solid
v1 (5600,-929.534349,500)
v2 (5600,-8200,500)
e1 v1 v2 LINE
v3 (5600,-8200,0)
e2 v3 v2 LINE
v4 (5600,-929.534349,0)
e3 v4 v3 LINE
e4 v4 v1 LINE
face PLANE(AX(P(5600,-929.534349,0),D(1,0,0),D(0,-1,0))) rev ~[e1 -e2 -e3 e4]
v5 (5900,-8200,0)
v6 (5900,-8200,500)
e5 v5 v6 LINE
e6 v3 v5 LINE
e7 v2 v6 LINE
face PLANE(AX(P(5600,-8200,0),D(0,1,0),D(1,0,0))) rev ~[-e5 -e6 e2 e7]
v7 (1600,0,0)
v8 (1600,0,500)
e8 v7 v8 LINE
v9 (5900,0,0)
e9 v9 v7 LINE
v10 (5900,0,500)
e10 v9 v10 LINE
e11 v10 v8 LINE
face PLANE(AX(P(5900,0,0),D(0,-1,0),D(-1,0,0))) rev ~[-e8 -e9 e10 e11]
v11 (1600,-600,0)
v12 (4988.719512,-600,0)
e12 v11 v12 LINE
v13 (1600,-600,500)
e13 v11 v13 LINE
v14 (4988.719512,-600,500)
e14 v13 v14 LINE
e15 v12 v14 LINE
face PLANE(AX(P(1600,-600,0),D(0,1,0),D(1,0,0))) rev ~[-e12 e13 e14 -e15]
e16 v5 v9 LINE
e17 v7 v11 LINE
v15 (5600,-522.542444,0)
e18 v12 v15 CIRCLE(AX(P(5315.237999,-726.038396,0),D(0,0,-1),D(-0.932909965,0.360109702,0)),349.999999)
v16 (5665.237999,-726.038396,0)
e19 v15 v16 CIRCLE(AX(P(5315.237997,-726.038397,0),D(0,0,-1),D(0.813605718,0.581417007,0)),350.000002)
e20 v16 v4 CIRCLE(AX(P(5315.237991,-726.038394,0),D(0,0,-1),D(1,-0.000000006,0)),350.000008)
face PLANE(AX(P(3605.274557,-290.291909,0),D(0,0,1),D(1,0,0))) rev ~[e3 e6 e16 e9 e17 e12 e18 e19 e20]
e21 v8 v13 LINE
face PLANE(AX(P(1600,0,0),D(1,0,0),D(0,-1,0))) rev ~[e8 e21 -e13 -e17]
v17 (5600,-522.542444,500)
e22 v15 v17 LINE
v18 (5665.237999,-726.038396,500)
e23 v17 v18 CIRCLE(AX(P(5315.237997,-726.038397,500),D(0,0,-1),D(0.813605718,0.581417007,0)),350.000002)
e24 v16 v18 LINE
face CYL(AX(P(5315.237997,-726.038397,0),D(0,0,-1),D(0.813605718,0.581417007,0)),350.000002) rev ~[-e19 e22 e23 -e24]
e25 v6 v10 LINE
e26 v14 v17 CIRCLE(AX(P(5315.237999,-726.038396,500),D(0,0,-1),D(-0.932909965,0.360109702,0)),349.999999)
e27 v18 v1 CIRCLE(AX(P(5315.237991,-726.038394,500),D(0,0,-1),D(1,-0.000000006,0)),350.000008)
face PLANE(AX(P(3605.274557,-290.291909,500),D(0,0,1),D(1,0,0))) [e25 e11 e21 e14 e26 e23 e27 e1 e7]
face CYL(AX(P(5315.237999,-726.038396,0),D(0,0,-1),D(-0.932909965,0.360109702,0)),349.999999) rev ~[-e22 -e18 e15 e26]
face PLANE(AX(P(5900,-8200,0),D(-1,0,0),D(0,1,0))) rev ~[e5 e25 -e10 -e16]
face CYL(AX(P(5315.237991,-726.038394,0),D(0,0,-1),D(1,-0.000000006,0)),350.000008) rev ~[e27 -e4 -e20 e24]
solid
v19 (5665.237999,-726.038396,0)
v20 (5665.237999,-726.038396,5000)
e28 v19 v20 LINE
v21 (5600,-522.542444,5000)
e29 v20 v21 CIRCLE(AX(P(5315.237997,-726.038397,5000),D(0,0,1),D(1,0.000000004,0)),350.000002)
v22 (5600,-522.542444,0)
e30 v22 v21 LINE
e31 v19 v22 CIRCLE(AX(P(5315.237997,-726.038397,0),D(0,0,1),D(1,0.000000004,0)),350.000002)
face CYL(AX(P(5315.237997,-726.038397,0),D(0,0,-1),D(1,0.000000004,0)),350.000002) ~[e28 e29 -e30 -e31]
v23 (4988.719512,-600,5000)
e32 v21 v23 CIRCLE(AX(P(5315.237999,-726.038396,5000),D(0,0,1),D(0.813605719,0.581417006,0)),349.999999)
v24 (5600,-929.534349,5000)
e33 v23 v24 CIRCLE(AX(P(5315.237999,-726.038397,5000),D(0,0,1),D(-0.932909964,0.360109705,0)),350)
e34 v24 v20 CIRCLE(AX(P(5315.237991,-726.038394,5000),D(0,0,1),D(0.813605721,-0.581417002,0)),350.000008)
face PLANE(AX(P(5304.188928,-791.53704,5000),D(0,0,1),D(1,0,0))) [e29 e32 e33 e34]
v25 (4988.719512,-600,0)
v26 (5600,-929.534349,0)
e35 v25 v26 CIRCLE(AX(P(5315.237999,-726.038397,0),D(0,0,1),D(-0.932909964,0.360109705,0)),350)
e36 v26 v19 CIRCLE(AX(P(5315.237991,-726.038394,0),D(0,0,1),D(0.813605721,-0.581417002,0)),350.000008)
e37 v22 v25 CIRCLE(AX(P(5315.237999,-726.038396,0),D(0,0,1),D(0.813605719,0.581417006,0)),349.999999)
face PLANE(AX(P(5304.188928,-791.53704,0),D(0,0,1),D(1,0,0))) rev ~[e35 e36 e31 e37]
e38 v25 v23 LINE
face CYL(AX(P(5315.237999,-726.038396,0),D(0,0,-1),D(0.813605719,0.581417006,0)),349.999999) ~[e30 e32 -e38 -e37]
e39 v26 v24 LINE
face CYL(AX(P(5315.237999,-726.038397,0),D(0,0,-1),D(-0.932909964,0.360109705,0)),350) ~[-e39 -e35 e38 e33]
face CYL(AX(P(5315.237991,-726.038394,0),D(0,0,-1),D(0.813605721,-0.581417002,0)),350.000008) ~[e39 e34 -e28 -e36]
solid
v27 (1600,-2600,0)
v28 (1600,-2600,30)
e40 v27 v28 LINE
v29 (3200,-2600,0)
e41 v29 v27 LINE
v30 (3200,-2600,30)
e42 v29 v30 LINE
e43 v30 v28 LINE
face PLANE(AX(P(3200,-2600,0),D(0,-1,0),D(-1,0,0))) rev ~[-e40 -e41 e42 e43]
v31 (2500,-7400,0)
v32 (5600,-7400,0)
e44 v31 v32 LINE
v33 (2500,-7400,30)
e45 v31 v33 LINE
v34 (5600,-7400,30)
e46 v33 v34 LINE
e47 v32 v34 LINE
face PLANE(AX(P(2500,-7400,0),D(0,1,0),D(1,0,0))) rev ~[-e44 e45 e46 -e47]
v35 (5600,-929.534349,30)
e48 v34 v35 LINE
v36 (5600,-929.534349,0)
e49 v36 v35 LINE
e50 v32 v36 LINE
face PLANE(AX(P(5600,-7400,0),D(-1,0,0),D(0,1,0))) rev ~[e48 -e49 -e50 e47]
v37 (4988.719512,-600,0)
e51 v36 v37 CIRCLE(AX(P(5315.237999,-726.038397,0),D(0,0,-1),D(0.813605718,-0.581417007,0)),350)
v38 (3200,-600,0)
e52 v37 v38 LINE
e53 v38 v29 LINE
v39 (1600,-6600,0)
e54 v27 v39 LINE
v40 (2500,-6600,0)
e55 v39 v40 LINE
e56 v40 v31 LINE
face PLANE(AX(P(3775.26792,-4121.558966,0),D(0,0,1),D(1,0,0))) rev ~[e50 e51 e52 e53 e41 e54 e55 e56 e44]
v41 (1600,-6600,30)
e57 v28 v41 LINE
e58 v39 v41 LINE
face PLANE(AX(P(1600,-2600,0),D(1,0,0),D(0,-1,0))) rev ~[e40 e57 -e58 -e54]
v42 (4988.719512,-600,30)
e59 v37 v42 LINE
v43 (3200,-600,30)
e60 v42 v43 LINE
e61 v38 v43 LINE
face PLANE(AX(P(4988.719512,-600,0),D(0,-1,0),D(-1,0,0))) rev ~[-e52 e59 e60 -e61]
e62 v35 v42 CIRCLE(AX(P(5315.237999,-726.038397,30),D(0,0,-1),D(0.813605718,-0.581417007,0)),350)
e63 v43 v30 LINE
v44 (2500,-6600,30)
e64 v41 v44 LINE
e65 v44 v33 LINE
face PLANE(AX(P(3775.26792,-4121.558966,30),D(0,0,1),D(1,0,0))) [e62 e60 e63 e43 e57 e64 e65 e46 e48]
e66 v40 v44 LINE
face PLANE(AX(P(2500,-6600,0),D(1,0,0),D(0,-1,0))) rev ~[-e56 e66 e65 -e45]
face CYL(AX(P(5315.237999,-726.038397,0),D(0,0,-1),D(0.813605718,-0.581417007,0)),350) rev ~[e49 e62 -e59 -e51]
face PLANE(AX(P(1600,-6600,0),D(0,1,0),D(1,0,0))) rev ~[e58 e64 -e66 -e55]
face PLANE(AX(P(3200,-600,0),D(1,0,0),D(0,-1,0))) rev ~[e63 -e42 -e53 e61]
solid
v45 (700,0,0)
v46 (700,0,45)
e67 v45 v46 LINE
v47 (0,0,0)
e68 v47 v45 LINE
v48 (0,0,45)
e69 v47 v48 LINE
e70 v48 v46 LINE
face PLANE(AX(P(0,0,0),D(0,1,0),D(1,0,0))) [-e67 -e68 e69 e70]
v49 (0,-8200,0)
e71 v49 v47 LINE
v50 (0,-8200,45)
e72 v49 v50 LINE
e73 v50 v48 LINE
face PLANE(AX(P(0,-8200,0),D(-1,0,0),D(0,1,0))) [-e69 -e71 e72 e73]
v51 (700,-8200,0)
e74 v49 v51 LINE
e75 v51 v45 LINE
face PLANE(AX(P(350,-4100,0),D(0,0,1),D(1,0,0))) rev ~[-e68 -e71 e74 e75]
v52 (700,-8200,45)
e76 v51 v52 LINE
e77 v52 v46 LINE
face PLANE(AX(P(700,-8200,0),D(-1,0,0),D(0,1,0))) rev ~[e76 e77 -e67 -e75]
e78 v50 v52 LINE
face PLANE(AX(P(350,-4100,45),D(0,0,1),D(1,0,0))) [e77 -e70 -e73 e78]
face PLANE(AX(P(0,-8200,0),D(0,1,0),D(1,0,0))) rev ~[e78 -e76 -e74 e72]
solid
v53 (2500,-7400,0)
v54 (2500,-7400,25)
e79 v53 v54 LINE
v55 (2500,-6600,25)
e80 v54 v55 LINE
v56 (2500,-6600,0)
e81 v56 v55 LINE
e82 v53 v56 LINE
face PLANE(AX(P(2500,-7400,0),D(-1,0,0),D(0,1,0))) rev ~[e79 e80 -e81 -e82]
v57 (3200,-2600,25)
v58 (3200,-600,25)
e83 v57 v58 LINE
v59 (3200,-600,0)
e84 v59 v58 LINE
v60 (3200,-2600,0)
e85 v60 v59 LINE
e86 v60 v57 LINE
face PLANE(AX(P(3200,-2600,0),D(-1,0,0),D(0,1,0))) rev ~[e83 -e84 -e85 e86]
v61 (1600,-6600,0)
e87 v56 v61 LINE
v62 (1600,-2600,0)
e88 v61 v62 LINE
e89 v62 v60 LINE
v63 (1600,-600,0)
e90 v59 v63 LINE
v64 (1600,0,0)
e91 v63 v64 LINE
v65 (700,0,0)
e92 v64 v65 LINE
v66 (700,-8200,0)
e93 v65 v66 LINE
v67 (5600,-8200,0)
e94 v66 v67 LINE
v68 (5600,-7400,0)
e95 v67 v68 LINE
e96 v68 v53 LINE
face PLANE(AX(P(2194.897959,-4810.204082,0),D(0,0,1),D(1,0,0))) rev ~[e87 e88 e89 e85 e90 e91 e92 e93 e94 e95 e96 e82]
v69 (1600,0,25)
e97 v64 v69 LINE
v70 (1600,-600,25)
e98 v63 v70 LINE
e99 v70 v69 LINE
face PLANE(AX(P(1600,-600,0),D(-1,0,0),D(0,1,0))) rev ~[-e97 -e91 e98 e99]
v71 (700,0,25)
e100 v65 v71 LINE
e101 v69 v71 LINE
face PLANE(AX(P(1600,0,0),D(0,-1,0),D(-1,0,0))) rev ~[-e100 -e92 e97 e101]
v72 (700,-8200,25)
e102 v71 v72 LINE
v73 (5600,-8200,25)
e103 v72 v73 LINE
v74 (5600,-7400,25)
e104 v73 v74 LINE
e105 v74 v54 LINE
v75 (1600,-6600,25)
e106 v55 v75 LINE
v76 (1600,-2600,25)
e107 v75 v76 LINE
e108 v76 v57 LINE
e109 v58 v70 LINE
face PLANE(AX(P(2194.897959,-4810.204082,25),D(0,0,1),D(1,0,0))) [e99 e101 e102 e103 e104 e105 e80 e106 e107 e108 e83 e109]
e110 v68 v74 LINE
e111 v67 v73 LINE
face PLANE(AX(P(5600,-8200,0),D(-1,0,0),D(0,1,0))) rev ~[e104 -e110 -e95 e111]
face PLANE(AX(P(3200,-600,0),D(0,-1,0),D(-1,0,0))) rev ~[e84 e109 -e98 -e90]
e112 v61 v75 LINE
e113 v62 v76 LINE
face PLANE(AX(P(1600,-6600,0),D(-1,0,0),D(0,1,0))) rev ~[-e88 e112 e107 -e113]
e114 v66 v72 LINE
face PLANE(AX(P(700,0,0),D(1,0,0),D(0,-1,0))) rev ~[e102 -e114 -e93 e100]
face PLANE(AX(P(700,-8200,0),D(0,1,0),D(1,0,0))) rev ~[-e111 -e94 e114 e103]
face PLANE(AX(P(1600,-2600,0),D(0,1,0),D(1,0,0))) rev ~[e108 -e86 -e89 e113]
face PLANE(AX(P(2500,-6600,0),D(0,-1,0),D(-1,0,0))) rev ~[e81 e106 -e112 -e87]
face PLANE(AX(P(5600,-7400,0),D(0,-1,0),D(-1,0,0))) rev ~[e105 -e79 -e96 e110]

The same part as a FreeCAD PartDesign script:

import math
import FreeCAD as App
import Part
import Sketcher


def add_polygon(sketch, points):
    """Adds a closed chain of lines whose ends are joined by coincident constraints."""
    first, n = sketch.GeometryCount, len(points)
    for a, b in zip(points, points[1:] + points[:1]):
        sketch.addGeometry(Part.LineSegment(App.Vector(*a, 0), App.Vector(*b, 0)), False)
    for i in range(n):
        sketch.addConstraint(Sketcher.Constraint("Coincident", first + i, 2, first + (i + 1) % n, 1))

doc = App.newDocument("Part")
body = doc.addObject("PartDesign::Body", "Body")

sketch1 = body.newObject("Sketcher::SketchObject", "Sketch")
sketch1.AttachmentSupport = (doc.getObject("XY_Plane"), [""])
sketch1.MapMode = "FlatFace"
sketch1.addGeometry([
    Part.LineSegment(App.Vector(1600, 0, 0), App.Vector(1600, -600, 0)),
    Part.LineSegment(App.Vector(1600, -600, 0), App.Vector(4988.719512, -600, 0)),
    Part.ArcOfCircle(Part.Circle(App.Vector(5315.237999, -726.038396, 0), App.Vector(0, 0, 1), 349.999999), math.radians(35.550269), math.radians(158.893067)),
    Part.ArcOfCircle(Part.Circle(App.Vector(5315.237997, -726.038397, 0), App.Vector(0, 0, 1), 350.000002), math.radians(0), math.radians(35.550269)),
    Part.ArcOfCircle(Part.Circle(App.Vector(5315.237991, -726.038394, 0), App.Vector(0, 0, 1), 350.000008), math.radians(-35.550269), math.radians(0)),
    Part.LineSegment(App.Vector(5600, -929.534349, 0), App.Vector(5600, -8200, 0)),
    Part.LineSegment(App.Vector(5600, -8200, 0), App.Vector(5900, -8200, 0)),
    Part.LineSegment(App.Vector(5900, -8200, 0), App.Vector(5900, 0, 0)),
    Part.LineSegment(App.Vector(5900, 0, 0), App.Vector(1600, 0, 0)),
], False)
sketch1.addConstraint([
    Sketcher.Constraint("Coincident", 0, 2, 1, 1),
    Sketcher.Constraint("Coincident", 1, 2, 2, 2),
    Sketcher.Constraint("Tangent", 2, 1, 3, 2),
    Sketcher.Constraint("Tangent", 3, 1, 4, 2),
    Sketcher.Constraint("Coincident", 4, 1, 5, 1),
    Sketcher.Constraint("Coincident", 5, 2, 6, 1),
    Sketcher.Constraint("Coincident", 6, 2, 7, 1),
    Sketcher.Constraint("Coincident", 7, 2, 8, 1),
    Sketcher.Constraint("Coincident", 8, 2, 0, 1),
    Sketcher.Constraint("Vertical", 0),
    Sketcher.Constraint("Horizontal", 1),
    Sketcher.Constraint("Vertical", 5),
    Sketcher.Constraint("Horizontal", 6),
    Sketcher.Constraint("Vertical", 7),
    Sketcher.Constraint("Horizontal", 8),
    Sketcher.Constraint("Coincident", 4, 3, 2, 3),
    Sketcher.Constraint("PointOnObject", 7, 2, -1),
    Sketcher.Constraint("Horizontal", 2, 3, 3, 1),
    Sketcher.Constraint("Vertical", 2, 1, 4, 1),
    Sketcher.Constraint("Radius", 2, 349.999999),
    Sketcher.Constraint("DistanceX", 6, 1, 6, 2, 300.0),
    Sketcher.Constraint("DistanceX", 8, 2, 8, 1, 4300.0),
    Sketcher.Constraint("DistanceY", 0, 2, 0, 1, 600.0),
    Sketcher.Constraint("DistanceY", 7, 1, 7, 2, 8200.0),
    Sketcher.Constraint("DistanceX", -1, 1, 0, 2, 1600.0),
    Sketcher.Constraint("DistanceX", -1, 1, 2, 3, 5315.237999),
    Sketcher.Constraint("DistanceX", 1, 1, 1, 2, 3388.719512),
])
pad1 = body.newObject("PartDesign::Pad", "Pad")
pad1.Profile = sketch1
pad1.Length = 500
body2 = doc.addObject("PartDesign::Body", "Body001")

sketch2 = body2.newObject("Sketcher::SketchObject", "Sketch001")
sketch2.AttachmentSupport = (doc.getObject("XY_Plane001"), [""])
sketch2.MapMode = "FlatFace"
add_polygon(sketch2, [(1600, 0), (700, 0), (700, -8200), (5600, -8200), (5600, -7400), (2500, -7400), (2500, -6600), (1600, -6600), (1600, -2600), (3200, -2600), (3200, -600), (1600, -600)])
sketch2.addConstraint([
    Sketcher.Constraint("Horizontal", 0),
    Sketcher.Constraint("Vertical", 1),
    Sketcher.Constraint("Horizontal", 2),
    Sketcher.Constraint("Vertical", 3),
    Sketcher.Constraint("Horizontal", 4),
    Sketcher.Constraint("Vertical", 5),
    Sketcher.Constraint("Horizontal", 6),
    Sketcher.Constraint("Vertical", 7),
    Sketcher.Constraint("Horizontal", 8),
    Sketcher.Constraint("Vertical", 9),
    Sketcher.Constraint("Horizontal", 10),
    Sketcher.Constraint("Vertical", 11),
    Sketcher.Constraint("PointOnObject", 0, 2, -1),
    Sketcher.Constraint("Vertical", 7, 2, 10, 2),
    Sketcher.Constraint("Equal", 0, 6),
    Sketcher.Constraint("Equal", 3, 5),
    Sketcher.Constraint("DistanceX", 0, 2, 0, 1, 900.0),
    Sketcher.Constraint("DistanceX", 2, 1, 2, 2, 4900.0),
    Sketcher.Constraint("DistanceX", 8, 1, 8, 2, 1600.0),
    Sketcher.Constraint("DistanceY", 1, 2, 1, 1, 8200.0),
    Sketcher.Constraint("DistanceY", 3, 1, 3, 2, 800.0),
    Sketcher.Constraint("DistanceY", 7, 1, 7, 2, 4000.0),
    Sketcher.Constraint("DistanceY", 9, 1, 9, 2, 2000.0),
    Sketcher.Constraint("DistanceX", -1, 1, 0, 2, 700.0),
])
pad2 = body2.newObject("PartDesign::Pad", "Pad001")
pad2.Profile = sketch2
pad2.Length = 25
body3 = doc.addObject("PartDesign::Body", "Body002")

sketch3 = body3.newObject("Sketcher::SketchObject", "Sketch002")
sketch3.AttachmentSupport = (doc.getObject("XY_Plane002"), [""])
sketch3.MapMode = "FlatFace"
add_polygon(sketch3, [(0, 0), (0, -8200), (700, -8200), (700, 0)])
sketch3.addConstraint([
    Sketcher.Constraint("Vertical", 0),
    Sketcher.Constraint("Horizontal", 1),
    Sketcher.Constraint("Vertical", 2),
    Sketcher.Constraint("Horizontal", 3),
    Sketcher.Constraint("Coincident", 3, 2, -1, 1),
    Sketcher.Constraint("DistanceX", 1, 1, 1, 2, 700.0),
    Sketcher.Constraint("DistanceY", 0, 2, 0, 1, 8200.0),
])
pad3 = body3.newObject("PartDesign::Pad", "Pad002")
pad3.Profile = sketch3
pad3.Length = 45
body4 = doc.addObject("PartDesign::Body", "Body003")

sketch4 = body4.newObject("Sketcher::SketchObject", "Sketch003")
sketch4.AttachmentSupport = (doc.getObject("XY_Plane003"), [""])
sketch4.MapMode = "FlatFace"
sketch4.addGeometry([
    Part.LineSegment(App.Vector(4988.719512, -600, 0), App.Vector(3200, -600, 0)),
    Part.LineSegment(App.Vector(3200, -600, 0), App.Vector(3200, -2600, 0)),
    Part.LineSegment(App.Vector(3200, -2600, 0), App.Vector(1600, -2600, 0)),
    Part.LineSegment(App.Vector(1600, -2600, 0), App.Vector(1600, -6600, 0)),
    Part.LineSegment(App.Vector(1600, -6600, 0), App.Vector(2500, -6600, 0)),
    Part.LineSegment(App.Vector(2500, -6600, 0), App.Vector(2500, -7400, 0)),
    Part.LineSegment(App.Vector(2500, -7400, 0), App.Vector(5600, -7400, 0)),
    Part.LineSegment(App.Vector(5600, -7400, 0), App.Vector(5600, -929.534349, 0)),
    Part.ArcOfCircle(Part.Circle(App.Vector(5315.237999, -726.038397, 0), App.Vector(0, 0, 1), 350), math.radians(158.893066), math.radians(324.449731)),
], False)
sketch4.addConstraint([
    Sketcher.Constraint("Coincident", 0, 2, 1, 1),
    Sketcher.Constraint("Coincident", 1, 2, 2, 1),
    Sketcher.Constraint("Coincident", 2, 2, 3, 1),
    Sketcher.Constraint("Coincident", 3, 2, 4, 1),
    Sketcher.Constraint("Coincident", 4, 2, 5, 1),
    Sketcher.Constraint("Coincident", 5, 2, 6, 1),
    Sketcher.Constraint("Coincident", 6, 2, 7, 1),
    Sketcher.Constraint("Coincident", 7, 2, 8, 2),
    Sketcher.Constraint("Coincident", 8, 1, 0, 1),
    Sketcher.Constraint("Horizontal", 0),
    Sketcher.Constraint("Vertical", 1),
    Sketcher.Constraint("Horizontal", 2),
    Sketcher.Constraint("Vertical", 3),
    Sketcher.Constraint("Horizontal", 4),
    Sketcher.Constraint("Vertical", 5),
    Sketcher.Constraint("Horizontal", 6),
    Sketcher.Constraint("Vertical", 7),
    Sketcher.Constraint("Radius", 8, 350.0),
    Sketcher.Constraint("DistanceX", 2, 2, 2, 1, 1600.0),
    Sketcher.Constraint("DistanceX", 4, 1, 4, 2, 900.0),
    Sketcher.Constraint("DistanceX", 6, 1, 6, 2, 3100.0),
    Sketcher.Constraint("DistanceY", 1, 2, 1, 1, 2000.0),
    Sketcher.Constraint("DistanceY", 3, 2, 3, 1, 4000.0),
    Sketcher.Constraint("DistanceY", 5, 2, 5, 1, 800.0),
    Sketcher.Constraint("DistanceX", -1, 1, 0, 2, 3200.0),
    Sketcher.Constraint("DistanceY", 0, 2, -1, 1, 600.0),
    Sketcher.Constraint("DistanceX", -1, 1, 8, 3, 5315.237999),
    Sketcher.Constraint("DistanceX", 0, 2, 0, 1, 1788.719512),
])
pad4 = body4.newObject("PartDesign::Pad", "Pad003")
pad4.Profile = sketch4
pad4.Length = 30
body5 = doc.addObject("PartDesign::Body", "Body004")

sketch5 = body5.newObject("Sketcher::SketchObject", "Sketch004")
sketch5.AttachmentSupport = (doc.getObject("XY_Plane004"), [""])
sketch5.MapMode = "FlatFace"
sketch5.addGeometry([
    Part.ArcOfCircle(Part.Circle(App.Vector(5315.237999, -726.038397, 0), App.Vector(0, 0, 1), 350), math.radians(158.893066), math.radians(324.449731)),
    Part.ArcOfCircle(Part.Circle(App.Vector(5315.237991, -726.038394, 0), App.Vector(0, 0, 1), 350.000008), math.radians(-35.550269), math.radians(0)),
    Part.ArcOfCircle(Part.Circle(App.Vector(5315.237997, -726.038397, 0), App.Vector(0, 0, 1), 350.000002), math.radians(0), math.radians(35.550269)),
    Part.ArcOfCircle(Part.Circle(App.Vector(5315.237999, -726.038396, 0), App.Vector(0, 0, 1), 349.999999), math.radians(35.550269), math.radians(158.893067)),
], False)
sketch5.addConstraint([
    Sketcher.Constraint("Tangent", 0, 2, 1, 1),
    Sketcher.Constraint("Tangent", 1, 2, 2, 1),
    Sketcher.Constraint("Tangent", 2, 2, 3, 1),
    Sketcher.Constraint("Coincident", 3, 2, 0, 1),
    Sketcher.Constraint("Coincident", 2, 3, 0, 3),
    Sketcher.Constraint("Horizontal", 3, 3, 1, 2),
    Sketcher.Constraint("Vertical", 0, 2, 2, 2),
    Sketcher.Constraint("Radius", 0, 350.0),
    Sketcher.Constraint("DistanceX", -1, 1, 0, 2, 5600.0),
    Sketcher.Constraint("DistanceY", 3, 2, -1, 1, 600.0),
    Sketcher.Constraint("DistanceX", -1, 1, 0, 3, 5315.237999),
    Sketcher.Constraint("DistanceY", 0, 3, -1, 1, 726.038397),
])
pad5 = body5.newObject("PartDesign::Pad", "Pad004")
pad5.Profile = sketch5
pad5.Length = 5000

doc.recompute()
